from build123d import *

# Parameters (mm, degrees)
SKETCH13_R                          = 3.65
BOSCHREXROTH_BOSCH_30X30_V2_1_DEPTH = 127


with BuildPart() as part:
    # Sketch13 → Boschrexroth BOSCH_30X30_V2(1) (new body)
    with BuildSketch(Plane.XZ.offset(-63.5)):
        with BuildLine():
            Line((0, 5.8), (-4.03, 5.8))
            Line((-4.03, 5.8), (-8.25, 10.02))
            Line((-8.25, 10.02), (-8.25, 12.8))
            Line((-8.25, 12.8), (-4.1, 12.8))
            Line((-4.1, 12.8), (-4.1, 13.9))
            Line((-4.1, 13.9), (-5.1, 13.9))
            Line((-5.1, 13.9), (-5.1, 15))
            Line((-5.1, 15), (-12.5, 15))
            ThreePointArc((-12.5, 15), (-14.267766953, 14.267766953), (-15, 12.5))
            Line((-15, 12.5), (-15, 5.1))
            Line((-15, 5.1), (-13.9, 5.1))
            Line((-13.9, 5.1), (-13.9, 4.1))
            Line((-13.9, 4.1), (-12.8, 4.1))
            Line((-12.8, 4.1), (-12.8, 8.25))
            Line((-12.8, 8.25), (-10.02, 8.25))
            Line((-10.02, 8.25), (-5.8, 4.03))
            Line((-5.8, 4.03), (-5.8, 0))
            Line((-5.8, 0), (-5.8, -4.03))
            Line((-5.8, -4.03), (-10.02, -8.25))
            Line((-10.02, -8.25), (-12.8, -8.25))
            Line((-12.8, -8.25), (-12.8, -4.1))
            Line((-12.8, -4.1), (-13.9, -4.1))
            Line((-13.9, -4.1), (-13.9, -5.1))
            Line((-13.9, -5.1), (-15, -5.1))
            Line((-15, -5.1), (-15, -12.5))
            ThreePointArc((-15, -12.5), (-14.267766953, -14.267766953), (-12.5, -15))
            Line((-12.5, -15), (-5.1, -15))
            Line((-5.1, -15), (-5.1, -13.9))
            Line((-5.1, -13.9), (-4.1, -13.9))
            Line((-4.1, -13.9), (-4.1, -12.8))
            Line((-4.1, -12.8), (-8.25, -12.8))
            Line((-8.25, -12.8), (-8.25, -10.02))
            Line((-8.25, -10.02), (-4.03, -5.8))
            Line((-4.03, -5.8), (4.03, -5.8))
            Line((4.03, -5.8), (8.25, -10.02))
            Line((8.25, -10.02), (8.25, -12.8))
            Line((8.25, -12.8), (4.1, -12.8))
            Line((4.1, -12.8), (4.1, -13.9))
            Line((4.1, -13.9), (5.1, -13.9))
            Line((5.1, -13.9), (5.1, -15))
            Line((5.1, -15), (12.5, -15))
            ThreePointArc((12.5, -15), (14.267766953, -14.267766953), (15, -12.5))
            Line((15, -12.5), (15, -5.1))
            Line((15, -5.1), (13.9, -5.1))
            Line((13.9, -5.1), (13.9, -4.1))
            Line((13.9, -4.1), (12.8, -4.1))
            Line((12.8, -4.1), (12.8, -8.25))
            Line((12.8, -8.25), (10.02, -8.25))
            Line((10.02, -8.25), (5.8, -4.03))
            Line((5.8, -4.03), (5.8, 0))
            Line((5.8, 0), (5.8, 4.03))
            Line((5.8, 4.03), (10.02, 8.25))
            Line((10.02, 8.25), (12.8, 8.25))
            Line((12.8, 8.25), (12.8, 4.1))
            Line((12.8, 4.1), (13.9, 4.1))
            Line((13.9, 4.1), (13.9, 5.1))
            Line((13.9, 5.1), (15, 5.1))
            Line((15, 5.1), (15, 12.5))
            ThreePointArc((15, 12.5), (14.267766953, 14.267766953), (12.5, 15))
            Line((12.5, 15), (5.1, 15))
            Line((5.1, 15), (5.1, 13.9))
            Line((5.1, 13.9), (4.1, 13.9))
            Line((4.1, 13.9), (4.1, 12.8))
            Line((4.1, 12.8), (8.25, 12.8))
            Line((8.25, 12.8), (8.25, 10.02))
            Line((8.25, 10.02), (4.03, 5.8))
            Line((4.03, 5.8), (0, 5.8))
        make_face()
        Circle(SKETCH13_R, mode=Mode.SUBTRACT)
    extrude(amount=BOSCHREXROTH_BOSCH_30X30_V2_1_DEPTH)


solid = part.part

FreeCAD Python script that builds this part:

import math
import FreeCAD as App
import Part
import Sketcher

doc = App.newDocument("Part")
body = doc.addObject("PartDesign::Body", "Body")

sketch1 = body.newObject("Sketcher::SketchObject", "Sketch")
sketch1.AttachmentSupport = (doc.getObject("XZ_Plane"), [""])
sketch1.MapMode = "FlatFace"
sketch1.AttachmentOffset = App.Placement(App.Vector(0, 0, -63.5), App.Rotation())
sketch1.addGeometry([
    Part.LineSegment(App.Vector(-4, 5.8, 0), App.Vector(-8.2, 10, 0)),
    Part.LineSegment(App.Vector(-8.2, 10, 0), App.Vector(-8.2, 12.8, 0)),
    Part.LineSegment(App.Vector(-8.2, 12.8, 0), App.Vector(-4.1, 12.8, 0)),
    Part.LineSegment(App.Vector(-4.1, 12.8, 0), App.Vector(-4.1, 13.9, 0)),
    Part.LineSegment(App.Vector(-4.1, 13.9, 0), App.Vector(-5.1, 13.9, 0)),
    Part.LineSegment(App.Vector(-5.1, 13.9, 0), App.Vector(-5.1, 15, 0)),
    Part.LineSegment(App.Vector(-5.1, 15, 0), App.Vector(-12.5, 15, 0)),
    Part.ArcOfCircle(Part.Circle(App.Vector(-12.5, 12.5, 0), App.Vector(0, 0, 1), 2.5), math.radians(90), math.radians(180)),
    Part.LineSegment(App.Vector(-15, 12.5, 0), App.Vector(-15, 5.1, 0)),
    Part.LineSegment(App.Vector(-15, 5.1, 0), App.Vector(-13.9, 5.1, 0)),
    Part.LineSegment(App.Vector(-13.9, 5.1, 0), App.Vector(-13.9, 4.1, 0)),
    Part.LineSegment(App.Vector(-13.9, 4.1, 0), App.Vector(-12.8, 4.1, 0)),
    Part.LineSegment(App.Vector(-12.8, 4.1, 0), App.Vector(-12.8, 8.2, 0)),
    Part.LineSegment(App.Vector(-12.8, 8.2, 0), App.Vector(-10, 8.2, 0)),
    Part.LineSegment(App.Vector(-10, 8.2, 0), App.Vector(-5.8, 4, 0)),
    Part.LineSegment(App.Vector(-5.8, 4, 0), App.Vector(-5.8, -4, 0)),
    Part.LineSegment(App.Vector(-5.8, -4, 0), App.Vector(-10, -8.2, 0)),
    Part.LineSegment(App.Vector(-10, -8.2, 0), App.Vector(-12.8, -8.2, 0)),
    Part.LineSegment(App.Vector(-12.8, -8.2, 0), App.Vector(-12.8, -4.1, 0)),
    Part.LineSegment(App.Vector(-12.8, -4.1, 0), App.Vector(-13.9, -4.1, 0)),
    Part.LineSegment(App.Vector(-13.9, -4.1, 0), App.Vector(-13.9, -5.1, 0)),
    Part.LineSegment(App.Vector(-13.9, -5.1, 0), App.Vector(-15, -5.1, 0)),
    Part.LineSegment(App.Vector(-15, -5.1, 0), App.Vector(-15, -12.5, 0)),
    Part.ArcOfCircle(Part.Circle(App.Vector(-12.5, -12.5, 0), App.Vector(0, 0, 1), 2.5), math.radians(180), math.radians(270)),
    Part.LineSegment(App.Vector(-12.5, -15, 0), App.Vector(-5.1, -15, 0)),
    Part.LineSegment(App.Vector(-5.1, -15, 0), App.Vector(-5.1, -13.9, 0)),
    Part.LineSegment(App.Vector(-5.1, -13.9, 0), App.Vector(-4.1, -13.9, 0)),
    Part.LineSegment(App.Vector(-4.1, -13.9, 0), App.Vector(-4.1, -12.8, 0)),
    Part.LineSegment(App.Vector(-4.1, -12.8, 0), App.Vector(-8.2, -12.8, 0)),
    Part.LineSegment(App.Vector(-8.2, -12.8, 0), App.Vector(-8.2, -10, 0)),
    Part.LineSegment(App.Vector(-8.2, -10, 0), App.Vector(-4, -5.8, 0)),
    Part.LineSegment(App.Vector(-4, -5.8, 0), App.Vector(4, -5.8, 0)),
    Part.LineSegment(App.Vector(4, -5.8, 0), App.Vector(8.2, -10, 0)),
    Part.LineSegment(App.Vector(8.2, -10, 0), App.Vector(8.2, -12.8, 0)),
    Part.LineSegment(App.Vector(8.2, -12.8, 0), App.Vector(4.1, -12.8, 0)),
    Part.LineSegment(App.Vector(4.1, -12.8, 0), App.Vector(4.1, -13.9, 0)),
    Part.LineSegment(App.Vector(4.1, -13.9, 0), App.Vector(5.1, -13.9, 0)),
    Part.LineSegment(App.Vector(5.1, -13.9, 0), App.Vector(5.1, -15, 0)),
    Part.LineSegment(App.Vector(5.1, -15, 0), App.Vector(12.5, -15, 0)),
    Part.ArcOfCircle(Part.Circle(App.Vector(12.5, -12.5, 0), App.Vector(0, 0, 1), 2.5), math.radians(-90), math.radians(0)),
    Part.LineSegment(App.Vector(15, -12.5, 0), App.Vector(15, -5.1, 0)),
    Part.LineSegment(App.Vector(15, -5.1, 0), App.Vector(13.9, -5.1, 0)),
    Part.LineSegment(App.Vector(13.9, -5.1, 0), App.Vector(13.9, -4.1, 0)),
    Part.LineSegment(App.Vector(13.9, -4.1, 0), App.Vector(12.8, -4.1, 0)),
    Part.LineSegment(App.Vector(12.8, -4.1, 0), App.Vector(12.8, -8.2, 0)),
    Part.LineSegment(App.Vector(12.8, -8.2, 0), App.Vector(10, -8.2, 0)),
    Part.LineSegment(App.Vector(10, -8.2, 0), App.Vector(5.8, -4, 0)),
    Part.LineSegment(App.Vector(5.8, -4, 0), App.Vector(5.8, 4, 0)),
    Part.LineSegment(App.Vector(5.8, 4, 0), App.Vector(10, 8.2, 0)),
    Part.LineSegment(App.Vector(10, 8.2, 0), App.Vector(12.8, 8.2, 0)),
    Part.LineSegment(App.Vector(12.8, 8.2, 0), App.Vector(12.8, 4.1, 0)),
    Part.LineSegment(App.Vector(12.8, 4.1, 0), App.Vector(13.9, 4.1, 0)),
    Part.LineSegment(App.Vector(13.9, 4.1, 0), App.Vector(13.9, 5.1, 0)),
    Part.LineSegment(App.Vector(13.9, 5.1, 0), App.Vector(15, 5.1, 0)),
    Part.LineSegment(App.Vector(15, 5.1, 0), App.Vector(15, 12.5, 0)),
    Part.ArcOfCircle(Part.Circle(App.Vector(12.5, 12.5, 0), App.Vector(0, 0, 1), 2.5), math.radians(0), math.radians(90)),
    Part.LineSegment(App.Vector(12.5, 15, 0), App.Vector(5.1, 15, 0)),
    Part.LineSegment(App.Vector(5.1, 15, 0), App.Vector(5.1, 13.9, 0)),
    Part.LineSegment(App.Vector(5.1, 13.9, 0), App.Vector(4.1, 13.9, 0)),
    Part.LineSegment(App.Vector(4.1, 13.9, 0), App.Vector(4.1, 12.8, 0)),
    Part.LineSegment(App.Vector(4.1, 12.8, 0), App.Vector(8.2, 12.8, 0)),
    Part.LineSegment(App.Vector(8.2, 12.8, 0), App.Vector(8.2, 10, 0)),
    Part.LineSegment(App.Vector(8.2, 10, 0), App.Vector(4, 5.8, 0)),
    Part.LineSegment(App.Vector(4, 5.8, 0), App.Vector(-4, 5.8, 0)),
    Part.Circle(App.Vector(0, 0, 0), App.Vector(0, 0, 1), 3.6),
], False)
sketch1.addConstraint([
    Sketcher.Constraint("Coincident", 0, 2, 1, 1),
    Sketcher.Constraint("Coincident", 1, 2, 2, 1),
    Sketcher.Constraint("Coincident", 2, 2, 3, 1),
    Sketcher.Constraint("Coincident", 3, 2, 4, 1),
    Sketcher.Constraint("Coincident", 4, 2, 5, 1),
    Sketcher.Constraint("Coincident", 5, 2, 6, 1),
    Sketcher.Constraint("Tangent", 6, 2, 7, 1),
    Sketcher.Constraint("Tangent", 7, 2, 8, 1),
    Sketcher.Constraint("Coincident", 8, 2, 9, 1),
    Sketcher.Constraint("Coincident", 9, 2, 10, 1),
    Sketcher.Constraint("Coincident", 10, 2, 11, 1),
    Sketcher.Constraint("Coincident", 11, 2, 12, 1),
    Sketcher.Constraint("Coincident", 12, 2, 13, 1),
    Sketcher.Constraint("Coincident", 13, 2, 14, 1),
    Sketcher.Constraint("Coincident", 14, 2, 15, 1),
    Sketcher.Constraint("Coincident", 15, 2, 16, 1),
    Sketcher.Constraint("Coincident", 16, 2, 17, 1),
    Sketcher.Constraint("Coincident", 17, 2, 18, 1),
    Sketcher.Constraint("Coincident", 18, 2, 19, 1),
    Sketcher.Constraint("Coincident", 19, 2, 20, 1),
    Sketcher.Constraint("Coincident", 20, 2, 21, 1),
    Sketcher.Constraint("Coincident", 21, 2, 22, 1),
    Sketcher.Constraint("Tangent", 22, 2, 23, 1),
    Sketcher.Constraint("Tangent", 23, 2, 24, 1),
    Sketcher.Constraint("Coincident", 24, 2, 25, 1),
    Sketcher.Constraint("Coincident", 25, 2, 26, 1),
    Sketcher.Constraint("Coincident", 26, 2, 27, 1),
    Sketcher.Constraint("Coincident", 27, 2, 28, 1),
    Sketcher.Constraint("Coincident", 28, 2, 29, 1),
    Sketcher.Constraint("Coincident", 29, 2, 30, 1),
    Sketcher.Constraint("Coincident", 30, 2, 31, 1),
    Sketcher.Constraint("Coincident", 31, 2, 32, 1),
    Sketcher.Constraint("Coincident", 32, 2, 33, 1),
    Sketcher.Constraint("Coincident", 33, 2, 34, 1),
    Sketcher.Constraint("Coincident", 34, 2, 35, 1),
    Sketcher.Constraint("Coincident", 35, 2, 36, 1),
    Sketcher.Constraint("Coincident", 36, 2, 37, 1),
    Sketcher.Constraint("Coincident", 37, 2, 38, 1),
    Sketcher.Constraint("Tangent", 38, 2, 39, 1),
    Sketcher.Constraint("Tangent", 39, 2, 40, 1),
    Sketcher.Constraint("Coincident", 40, 2, 41, 1),
    Sketcher.Constraint("Coincident", 41, 2, 42, 1),
    Sketcher.Constraint("Coincident", 42, 2, 43, 1),
    Sketcher.Constraint("Coincident", 43, 2, 44, 1),
    Sketcher.Constraint("Coincident", 44, 2, 45, 1),
    Sketcher.Constraint("Coincident", 45, 2, 46, 1),
    Sketcher.Constraint("Coincident", 46, 2, 47, 1),
    Sketcher.Constraint("Coincident", 47, 2, 48, 1),
    Sketcher.Constraint("Coincident", 48, 2, 49, 1),
    Sketcher.Constraint("Coincident", 49, 2, 50, 1),
    Sketcher.Constraint("Coincident", 50, 2, 51, 1),
    Sketcher.Constraint("Coincident", 51, 2, 52, 1),
    Sketcher.Constraint("Coincident", 52, 2, 53, 1),
    Sketcher.Constraint("Coincident", 53, 2, 54, 1),
    Sketcher.Constraint("Tangent", 54, 2, 55, 1),
    Sketcher.Constraint("Tangent", 55, 2, 56, 1),
    Sketcher.Constraint("Coincident", 56, 2, 57, 1),
    Sketcher.Constraint("Coincident", 57, 2, 58, 1),
    Sketcher.Constraint("Coincident", 58, 2, 59, 1),
    Sketcher.Constraint("Coincident", 59, 2, 60, 1),
    Sketcher.Constraint("Coincident", 60, 2, 61, 1),
    Sketcher.Constraint("Coincident", 61, 2, 62, 1),
    Sketcher.Constraint("Coincident", 62, 2, 63, 1),
    Sketcher.Constraint("Coincident", 63, 2, 0, 1),
    Sketcher.Constraint("Vertical", 1),
    Sketcher.Constraint("Horizontal", 2),
    Sketcher.Constraint("Vertical", 3),
    Sketcher.Constraint("Horizontal", 4),
    Sketcher.Constraint("Vertical", 5),
    Sketcher.Constraint("Horizontal", 6),
    Sketcher.Constraint("Vertical", 8),
    Sketcher.Constraint("Horizontal", 9),
    Sketcher.Constraint("Vertical", 10),
    Sketcher.Constraint("Horizontal", 11),
    Sketcher.Constraint("Vertical", 12),
    Sketcher.Constraint("Horizontal", 13),
    Sketcher.Constraint("Vertical", 15),
    Sketcher.Constraint("Horizontal", 17),
    Sketcher.Constraint("Vertical", 18),
    Sketcher.Constraint("Horizontal", 19),
    Sketcher.Constraint("Vertical", 20),
    Sketcher.Constraint("Horizontal", 21),
    Sketcher.Constraint("Vertical", 22),
    Sketcher.Constraint("Horizontal", 24),
    Sketcher.Constraint("Vertical", 25),
    Sketcher.Constraint("Horizontal", 26),
    Sketcher.Constraint("Vertical", 27),
    Sketcher.Constraint("Horizontal", 28),
    Sketcher.Constraint("Vertical", 29),
    Sketcher.Constraint("Horizontal", 31),
    Sketcher.Constraint("Vertical", 33),
    Sketcher.Constraint("Horizontal", 34),
    Sketcher.Constraint("Vertical", 35),
    Sketcher.Constraint("Horizontal", 36),
    Sketcher.Constraint("Vertical", 37),
    Sketcher.Constraint("Horizontal", 38),
    Sketcher.Constraint("Vertical", 40),
    Sketcher.Constraint("Horizontal", 41),
    Sketcher.Constraint("Vertical", 42),
    Sketcher.Constraint("Horizontal", 43),
    Sketcher.Constraint("Vertical", 44),
    Sketcher.Constraint("Horizontal", 45),
    Sketcher.Constraint("Vertical", 47),
    Sketcher.Constraint("Horizontal", 49),
    Sketcher.Constraint("Vertical", 50),
    Sketcher.Constraint("Horizontal", 51),
    Sketcher.Constraint("Vertical", 52),
    Sketcher.Constraint("Horizontal", 53),
    Sketcher.Constraint("Vertical", 54),
    Sketcher.Constraint("Horizontal", 56),
    Sketcher.Constraint("Vertical", 57),
    Sketcher.Constraint("Horizontal", 58),
    Sketcher.Constraint("Vertical", 59),
    Sketcher.Constraint("Horizontal", 60),
    Sketcher.Constraint("Vertical", 61),
    Sketcher.Constraint("Horizontal", 63),
    Sketcher.Constraint("Coincident", 64, 3, -1, 1),
    Sketcher.Constraint("Equal", 7, 23),
    Sketcher.Constraint("Equal", 23, 39),
    Sketcher.Constraint("Equal", 39, 55),
    Sketcher.Constraint("Symmetric", 7, 3, 39, 3, -1, 1),
    Sketcher.Constraint("Symmetric", 23, 3, 55, 3, -1, 1),
    Sketcher.Constraint("Symmetric", 0, 2, 32, 2, -1, 1),
    Sketcher.Constraint("Symmetric", 2, 2, 34, 2, -1, 1),
    Sketcher.Constraint("Symmetric", 4, 2, 36, 2, -1, 1),
    Sketcher.Constraint("Symmetric", 9, 2, 41, 2, -1, 1),
    Sketcher.Constraint("Symmetric", 11, 2, 43, 2, -1, 1),
    Sketcher.Constraint("Symmetric", 13, 2, 45, 2, -1, 1),
    Sketcher.Constraint("Symmetric", 14, 2, 46, 2, -1, 1),
    Sketcher.Constraint("Symmetric", 16, 2, 48, 2, -1, 1),
    Sketcher.Constraint("Symmetric", 18, 2, 50, 2, -1, 1),
    Sketcher.Constraint("Symmetric", 20, 2, 52, 2, -1, 1),
    Sketcher.Constraint("Symmetric", 25, 2, 57, 2, -1, 1),
    Sketcher.Constraint("Symmetric", 27, 2, 59, 2, -1, 1),
    Sketcher.Constraint("Symmetric", 29, 2, 61, 2, -1, 1),
    Sketcher.Constraint("Symmetric", 30, 2, 62, 2, -1, 1),
    Sketcher.Constraint("Symmetric", 23, 3, 39, 3, -2),
    Sketcher.Constraint("Symmetric", 29, 2, 32, 2, -2),
    Sketcher.Constraint("Symmetric", 27, 2, 34, 2, -2),
    Sketcher.Constraint("Symmetric", 25, 2, 36, 2, -2),
    Sketcher.Constraint("Symmetric", 20, 2, 41, 2, -2),
    Sketcher.Constraint("Symmetric", 18, 2, 43, 2, -2),
    Sketcher.Constraint("Symmetric", 16, 2, 45, 2, -2),
    Sketcher.Constraint("Parallel", 0, 14),
    Sketcher.Constraint("Perpendicular", 14, 16),
    Sketcher.Constraint("Parallel", 16, 30),
    Sketcher.Constraint("Perpendicular", 30, 32),
    Sketcher.Constraint("Perpendicular", 46, 48),
    Sketcher.Constraint("Horizontal", 15, 2, 46, 2),
    Sketcher.Constraint("Equal", 9, 11),
    Sketcher.Constraint("Equal", 49, 1),
    Sketcher.Constraint("Equal", 53, 3),
    Sketcher.Constraint("Equal", 3, 5),
    Sketcher.Constraint("Equal", 56, 8),
    Sketcher.Constraint("Equal", 58, 10),
    Sketcher.Constraint("Equal", 60, 12),
    Sketcher.Constraint("Equal", 63, 15),
    Sketcher.Constraint("Equal", 0, 14),
    Sketcher.Constraint("Diameter", 64, 7.3),
    Sketcher.Constraint("Radius", 7, 2.5),
    Sketcher.Constraint("DistanceX", 4, 2, 4, 1, 1.0),
    Sketcher.Constraint("DistanceX", 6, 2, 6, 1, 7.4),
    Sketcher.Constraint("DistanceX", 9, 1, 9, 2, 1.1),
    Sketcher.Constraint("DistanceY", -1, 1, 5, 2, 15.0),
    Sketcher.Constraint("DistanceX", 2, 1, 2, 2, 4.15),
    Sketcher.Constraint("DistanceX", 13, 1, 13, 2, 2.78),
    Sketcher.Constraint("DistanceX", 31, 1, 31, 2, 8.06),
])
pad1 = body.newObject("PartDesign::Pad", "Pad")
pad1.Profile = sketch1
pad1.Length = 127

doc.recompute()
